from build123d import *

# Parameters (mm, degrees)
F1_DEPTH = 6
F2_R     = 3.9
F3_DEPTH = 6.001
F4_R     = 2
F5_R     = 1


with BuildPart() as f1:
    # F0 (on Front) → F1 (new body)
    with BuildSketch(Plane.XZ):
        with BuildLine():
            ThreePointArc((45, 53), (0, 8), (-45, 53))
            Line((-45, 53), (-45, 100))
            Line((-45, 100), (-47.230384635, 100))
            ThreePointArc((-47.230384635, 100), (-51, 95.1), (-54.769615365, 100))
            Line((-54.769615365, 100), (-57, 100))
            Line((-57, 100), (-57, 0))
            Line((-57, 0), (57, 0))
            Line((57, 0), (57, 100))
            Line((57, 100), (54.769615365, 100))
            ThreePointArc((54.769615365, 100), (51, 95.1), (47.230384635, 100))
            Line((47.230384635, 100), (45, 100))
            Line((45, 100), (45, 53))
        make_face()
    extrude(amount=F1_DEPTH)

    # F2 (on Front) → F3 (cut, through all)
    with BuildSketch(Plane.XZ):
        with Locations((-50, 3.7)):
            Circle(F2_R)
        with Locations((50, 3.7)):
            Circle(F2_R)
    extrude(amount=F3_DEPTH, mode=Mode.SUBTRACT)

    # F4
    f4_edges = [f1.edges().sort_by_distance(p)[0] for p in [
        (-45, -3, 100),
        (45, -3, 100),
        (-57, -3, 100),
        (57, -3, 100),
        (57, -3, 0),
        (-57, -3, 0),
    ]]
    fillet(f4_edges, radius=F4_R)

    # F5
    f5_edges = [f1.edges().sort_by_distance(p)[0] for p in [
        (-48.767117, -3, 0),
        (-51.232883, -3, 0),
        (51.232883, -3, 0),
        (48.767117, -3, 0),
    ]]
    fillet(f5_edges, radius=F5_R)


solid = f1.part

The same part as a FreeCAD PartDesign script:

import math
import FreeCAD as App
import Part
import Sketcher

V = App.Vector
Q = App.Units.Quantity


def edges_at(feature, points):
    """Names of the edges that pass closest to the given points."""
    edges = feature.Shape.Edges
    near = lambda p: min(range(len(edges)), key=lambda i: edges[i].distToShape(Part.Vertex(*p))[0])
    return sorted({f"Edge{near(p) + 1}" for p in points})

doc = App.newDocument("Part")
body = doc.addObject("PartDesign::Body", "Body")

# Sketch on XZ plane
sketch1 = body.newObject("Sketcher::SketchObject", "Sketch")
sketch1.AttachmentSupport = (doc.getObject("XZ_Plane"), [""])
sketch1.MapMode = "FlatFace"
sketch1.addGeometry(Part.ArcOfCircle(Part.Circle(V(0, 53, 0), V(0, 0, 1), 45), math.radians(180), math.radians(360)), False)
sketch1.addGeometry(Part.LineSegment(V(-45, 53, 0), V(-45, 100, 0)), False)
sketch1.addGeometry(Part.LineSegment(V(-45, 100, 0), V(-47.230385, 100, 0)), False)
sketch1.addGeometry(Part.ArcOfCircle(Part.Circle(V(-51, 99, 0), V(0, 0, 1), 3.9), math.radians(165.142834), math.radians(374.857166)), False)
sketch1.addGeometry(Part.LineSegment(V(-54.769615, 100, 0), V(-57, 100, 0)), False)
sketch1.addGeometry(Part.LineSegment(V(-57, 100, 0), V(-57, 0, 0)), False)
sketch1.addGeometry(Part.LineSegment(V(-57, 0, 0), V(57, 0, 0)), False)
sketch1.addGeometry(Part.LineSegment(V(57, 0, 0), V(57, 100, 0)), False)
sketch1.addGeometry(Part.LineSegment(V(57, 100, 0), V(54.769615, 100, 0)), False)
sketch1.addGeometry(Part.ArcOfCircle(Part.Circle(V(51, 99, 0), V(0, 0, 1), 3.9), math.radians(165.142834), math.radians(374.857166)), False)
sketch1.addGeometry(Part.LineSegment(V(47.230385, 100, 0), V(45, 100, 0)), False)
sketch1.addGeometry(Part.LineSegment(V(45, 100, 0), V(45, 53, 0)), False)
sketch1.addConstraint(Sketcher.Constraint("Tangent", 0, 1, 1, 1))
sketch1.addConstraint(Sketcher.Constraint("Coincident", 1, 2, 2, 1))
sketch1.addConstraint(Sketcher.Constraint("Coincident", 2, 2, 3, 2))
sketch1.addConstraint(Sketcher.Constraint("Coincident", 3, 1, 4, 1))
sketch1.addConstraint(Sketcher.Constraint("Coincident", 4, 2, 5, 1))
sketch1.addConstraint(Sketcher.Constraint("Coincident", 5, 2, 6, 1))
sketch1.addConstraint(Sketcher.Constraint("Coincident", 6, 2, 7, 1))
sketch1.addConstraint(Sketcher.Constraint("Coincident", 7, 2, 8, 1))
sketch1.addConstraint(Sketcher.Constraint("Coincident", 8, 2, 9, 2))
sketch1.addConstraint(Sketcher.Constraint("Coincident", 9, 1, 10, 1))
sketch1.addConstraint(Sketcher.Constraint("Coincident", 10, 2, 11, 1))
sketch1.addConstraint(Sketcher.Constraint("Tangent", 11, 2, 0, 2))
sketch1.addConstraint(Sketcher.Constraint("Vertical", 1))
sketch1.addConstraint(Sketcher.Constraint("Horizontal", 2))
sketch1.addConstraint(Sketcher.Constraint("Horizontal", 4))
sketch1.addConstraint(Sketcher.Constraint("Vertical", 5))
sketch1.addConstraint(Sketcher.Constraint("Horizontal", 6))
sketch1.addConstraint(Sketcher.Constraint("Vertical", 7))
sketch1.addConstraint(Sketcher.Constraint("Horizontal", 8))
sketch1.addConstraint(Sketcher.Constraint("Horizontal", 10))
sketch1.addConstraint(Sketcher.Constraint("Vertical", 11))
sketch1.addConstraint(Sketcher.Constraint("Equal", 3, 9))
sketch1.addConstraint(Sketcher.Constraint("Symmetric", 5, 2, 6, 2, -1, 1))
sketch1.addConstraint(Sketcher.Constraint("Symmetric", 3, 3, 9, 3, -2))
sketch1.addConstraint(Sketcher.Constraint("Symmetric", 1, 2, 10, 2, -2))
sketch1.addConstraint(Sketcher.Constraint("Horizontal", 2, 2, 3, 1))
sketch1.addConstraint(Sketcher.Constraint("Horizontal", 4, 2, 7, 2))
sketch1.addConstraint(Sketcher.Constraint("Equal", 2, 4))
sketch1.addConstraint(Sketcher.Constraint("Radius", 0, Q("45 mm")))
sketch1.addConstraint(Sketcher.Constraint("Radius", 3, Q("3.9 mm")))
sketch1.addConstraint(Sketcher.Constraint("DistanceX", 6, 1, 6, 2, Q("114 mm")))
sketch1.addConstraint(Sketcher.Constraint("DistanceY", 1, 1, 1, 2, Q("47 mm")))
sketch1.addConstraint(Sketcher.Constraint("DistanceY", 5, 2, 5, 1, Q("100 mm")))
sketch1.addConstraint(Sketcher.Constraint("DistanceY", -1, 1, 3, 3, Q("99 mm")))
pad1 = body.newObject("PartDesign::Pad", "Pad")
pad1.Profile = sketch1
pad1.Length = 6

# Sketch on XZ plane
sketch2 = body.newObject("Sketcher::SketchObject", "Sketch001")
sketch2.AttachmentSupport = (doc.getObject("XZ_Plane"), [""])
sketch2.MapMode = "FlatFace"
sketch2.addGeometry(Part.Circle(V(-50, 3.7, 0), V(0, 0, 1), 3.9), False)
sketch2.addGeometry(Part.Circle(V(50, 3.7, 0), V(0, 0, 1), 3.9), False)
sketch2.addConstraint(Sketcher.Constraint("Equal", 0, 1))
sketch2.addConstraint(Sketcher.Constraint("Symmetric", 0, 3, 1, 3, -2))
sketch2.addConstraint(Sketcher.Constraint("Diameter", 0, Q("7.8 mm")))
sketch2.addConstraint(Sketcher.Constraint("DistanceX", 0, 3, -1, 1, Q("50 mm")))
sketch2.addConstraint(Sketcher.Constraint("DistanceY", -1, 1, 0, 3, Q("3.7 mm")))
pocket1 = body.newObject("PartDesign::Pocket", "Pocket")
pocket1.Profile = sketch2
pocket1.Type = "ThroughAll"
pocket1.Reversed = True
doc.recompute()

fillet = body.newObject("PartDesign::Fillet", "Fillet")
fillet.Base = (pocket1, edges_at(pocket1, [
    (-45, -3, 100),
    (45, -3, 100),
    (-57, -3, 100),
    (57, -3, 100),
    (57, -3, 0),
    (-57, -3, 0),
]))
fillet.Radius = 2
doc.recompute()

fillet2 = body.newObject("PartDesign::Fillet", "Fillet001")
fillet2.Base = (fillet, edges_at(fillet, [
    (-48.767, -3, 0),
    (-51.233, -3, 0),
    (51.233, -3, 0),
    (48.767, -3, 0),
]))
fillet2.Radius = 1

doc.recompute()
